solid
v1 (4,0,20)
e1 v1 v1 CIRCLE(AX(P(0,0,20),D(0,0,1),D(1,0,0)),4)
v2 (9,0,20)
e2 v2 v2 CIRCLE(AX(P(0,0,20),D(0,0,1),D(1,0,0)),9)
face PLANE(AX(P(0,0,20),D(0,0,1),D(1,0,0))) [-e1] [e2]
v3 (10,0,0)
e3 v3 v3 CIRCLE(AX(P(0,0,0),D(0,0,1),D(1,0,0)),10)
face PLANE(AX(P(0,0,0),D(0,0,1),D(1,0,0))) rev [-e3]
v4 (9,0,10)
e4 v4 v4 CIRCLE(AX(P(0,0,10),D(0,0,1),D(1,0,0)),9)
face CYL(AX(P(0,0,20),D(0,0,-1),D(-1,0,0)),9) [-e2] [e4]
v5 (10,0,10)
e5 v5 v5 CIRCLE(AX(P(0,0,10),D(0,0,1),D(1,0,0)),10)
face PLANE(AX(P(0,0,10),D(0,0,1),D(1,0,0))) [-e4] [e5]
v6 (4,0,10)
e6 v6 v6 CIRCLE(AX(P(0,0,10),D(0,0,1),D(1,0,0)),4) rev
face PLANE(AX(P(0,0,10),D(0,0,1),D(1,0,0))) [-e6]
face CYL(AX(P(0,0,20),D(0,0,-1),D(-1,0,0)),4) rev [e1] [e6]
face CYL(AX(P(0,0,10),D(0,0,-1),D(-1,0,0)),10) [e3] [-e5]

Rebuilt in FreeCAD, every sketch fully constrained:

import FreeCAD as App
import Part
import Sketcher
from FreeCAD import Vector

doc = App.newDocument("Part")
body = doc.addObject("PartDesign::Body", "Body")

# Sketch on XY plane
sketch1 = doc.addObject("Sketcher::SketchObject", "Sketch")
body.addObject(sketch1)
sketch1.AttachmentSupport = (doc.XY_Plane, [""])
sketch1.MapMode = "FlatFace"
sketch1.addGeometry(Part.Circle(Vector(0, 0, 0), Vector(0, 0, 1), 10), False)
sketch1.addConstraint([
    Sketcher.Constraint("Coincident", 0, 3, -1, 1),
    Sketcher.Constraint("Diameter", 0, 20.0),
])
pad1 = doc.addObject("PartDesign::Pad", "Pad")
body.addObject(pad1)
pad1.Profile = sketch1
pad1.Length = 10

# Sketch on XY plane
sketch2 = doc.addObject("Sketcher::SketchObject", "Sketch001")
body.addObject(sketch2)
sketch2.AttachmentSupport = (doc.XY_Plane, [""])
sketch2.MapMode = "FlatFace"
sketch2.AttachmentOffset = App.Placement(Vector(0, 0, 10), App.Rotation())
sketch2.addGeometry([
    Part.Circle(Vector(0, 0, 0), Vector(0, 0, 1), 9),
    Part.Circle(Vector(0, 0, 0), Vector(0, 0, 1), 4),
], False)
sketch2.addConstraint([
    Sketcher.Constraint("Coincident", 0, 3, -1, 1),
    Sketcher.Constraint("Coincident", 1, 3, -1, 1),
    Sketcher.Constraint("Diameter", 0, 18.0),
    Sketcher.Constraint("Diameter", 1, 8.0),
])
pad2 = doc.addObject("PartDesign::Pad", "Pad001")
body.addObject(pad2)
pad2.Profile = sketch2
pad2.Length = 10

doc.recompute()
